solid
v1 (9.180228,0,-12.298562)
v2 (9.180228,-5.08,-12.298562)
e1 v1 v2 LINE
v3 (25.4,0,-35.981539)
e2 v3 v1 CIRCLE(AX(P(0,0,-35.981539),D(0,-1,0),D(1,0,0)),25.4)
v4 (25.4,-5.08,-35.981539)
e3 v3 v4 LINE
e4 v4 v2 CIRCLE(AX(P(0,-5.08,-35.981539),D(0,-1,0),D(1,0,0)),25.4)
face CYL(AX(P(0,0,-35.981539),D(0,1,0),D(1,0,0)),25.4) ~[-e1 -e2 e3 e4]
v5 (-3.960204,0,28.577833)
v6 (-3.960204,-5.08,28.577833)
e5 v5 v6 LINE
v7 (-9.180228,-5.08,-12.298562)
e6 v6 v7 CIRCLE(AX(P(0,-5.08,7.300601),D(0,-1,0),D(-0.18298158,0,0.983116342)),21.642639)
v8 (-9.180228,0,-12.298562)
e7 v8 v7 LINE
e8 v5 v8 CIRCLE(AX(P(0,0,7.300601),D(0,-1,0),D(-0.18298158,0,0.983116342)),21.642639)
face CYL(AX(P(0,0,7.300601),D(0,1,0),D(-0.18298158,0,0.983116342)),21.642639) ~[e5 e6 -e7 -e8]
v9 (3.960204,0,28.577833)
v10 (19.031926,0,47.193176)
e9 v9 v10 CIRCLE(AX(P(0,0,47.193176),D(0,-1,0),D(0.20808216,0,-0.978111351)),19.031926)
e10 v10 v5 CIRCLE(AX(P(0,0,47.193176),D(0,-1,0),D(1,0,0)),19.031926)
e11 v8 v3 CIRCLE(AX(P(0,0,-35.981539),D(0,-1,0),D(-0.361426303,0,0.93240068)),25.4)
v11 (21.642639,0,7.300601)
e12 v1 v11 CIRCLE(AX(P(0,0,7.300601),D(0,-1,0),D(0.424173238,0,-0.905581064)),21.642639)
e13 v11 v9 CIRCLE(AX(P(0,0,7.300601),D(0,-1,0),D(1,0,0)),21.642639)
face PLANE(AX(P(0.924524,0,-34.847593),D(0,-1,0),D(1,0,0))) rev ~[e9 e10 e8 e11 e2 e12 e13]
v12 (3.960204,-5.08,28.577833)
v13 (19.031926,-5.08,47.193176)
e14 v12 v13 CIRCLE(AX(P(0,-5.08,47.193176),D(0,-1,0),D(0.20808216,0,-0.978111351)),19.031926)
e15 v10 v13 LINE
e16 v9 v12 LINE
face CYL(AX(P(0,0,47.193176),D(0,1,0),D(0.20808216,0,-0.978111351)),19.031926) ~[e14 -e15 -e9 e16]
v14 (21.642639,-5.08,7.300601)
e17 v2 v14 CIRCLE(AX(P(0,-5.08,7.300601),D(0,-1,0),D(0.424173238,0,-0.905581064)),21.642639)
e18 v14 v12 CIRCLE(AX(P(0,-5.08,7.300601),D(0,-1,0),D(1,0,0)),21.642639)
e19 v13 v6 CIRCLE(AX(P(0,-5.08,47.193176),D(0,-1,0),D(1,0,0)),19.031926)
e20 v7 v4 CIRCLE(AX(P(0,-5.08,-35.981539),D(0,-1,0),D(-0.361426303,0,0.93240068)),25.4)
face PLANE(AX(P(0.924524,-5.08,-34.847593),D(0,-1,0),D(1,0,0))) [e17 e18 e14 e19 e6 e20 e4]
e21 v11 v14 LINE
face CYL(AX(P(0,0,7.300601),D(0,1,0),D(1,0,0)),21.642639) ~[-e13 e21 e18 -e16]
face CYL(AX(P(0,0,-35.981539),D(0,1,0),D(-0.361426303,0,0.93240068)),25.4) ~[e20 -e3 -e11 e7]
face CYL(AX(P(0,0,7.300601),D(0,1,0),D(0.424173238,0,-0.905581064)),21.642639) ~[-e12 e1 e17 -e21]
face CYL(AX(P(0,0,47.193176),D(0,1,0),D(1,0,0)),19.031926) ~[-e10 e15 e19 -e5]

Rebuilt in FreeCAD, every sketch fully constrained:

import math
import FreeCAD as App
import Part
import Sketcher

V = App.Vector
Q = App.Units.Quantity

doc = App.newDocument("Part")
body = doc.addObject("PartDesign::Body", "Body")

# Sketch on XZ plane
sketch1 = doc.addObject("Sketcher::SketchObject", "Sketch")
body.addObject(sketch1)
sketch1.AttachmentSupport = (doc.XZ_Plane, [""])
sketch1.MapMode = "FlatFace"
sketch1.addGeometry(Part.ArcOfCircle(Part.Circle(V(0, -35.981539, 0), V(0, 0, 1), 25.4), math.radians(111.187816), math.radians(360)), False)
sketch1.addGeometry(Part.ArcOfCircle(Part.Circle(V(0, -35.981539, 0), V(0, 0, 1), 25.4), math.radians(0), math.radians(68.812184)), False)
sketch1.addGeometry(Part.ArcOfCircle(Part.Circle(V(0, 7.300601, 0), V(0, 0, 1), 21.642639), math.radians(-64.901657), math.radians(0)), False)
sketch1.addGeometry(Part.ArcOfCircle(Part.Circle(V(0, 7.300601, 0), V(0, 0, 1), 21.642639), math.radians(0), math.radians(79.456523)), False)
sketch1.addGeometry(Part.ArcOfCircle(Part.Circle(V(0, 47.193176, 0), V(0, 0, 1), 19.031926), math.radians(-77.990014), math.radians(0)), False)
sketch1.addGeometry(Part.ArcOfCircle(Part.Circle(V(0, 47.193176, 0), V(0, 0, 1), 19.031926), math.radians(0), math.radians(257.990014)), False)
sketch1.addGeometry(Part.ArcOfCircle(Part.Circle(V(0, 7.300601, 0), V(0, 0, 1), 21.642639), math.radians(100.543477), math.radians(244.901657)), False)
sketch1.addConstraint(Sketcher.Constraint("Tangent", 0, 2, 1, 1))
sketch1.addConstraint(Sketcher.Constraint("Coincident", 1, 2, 2, 1))
sketch1.addConstraint(Sketcher.Constraint("Tangent", 2, 2, 3, 1))
sketch1.addConstraint(Sketcher.Constraint("Coincident", 3, 2, 4, 1))
sketch1.addConstraint(Sketcher.Constraint("Tangent", 4, 2, 5, 1))
sketch1.addConstraint(Sketcher.Constraint("Coincident", 5, 2, 6, 1))
sketch1.addConstraint(Sketcher.Constraint("Coincident", 6, 2, 0, 1))
sketch1.addConstraint(Sketcher.Constraint("Coincident", 6, 3, 2, 3))
sketch1.addConstraint(Sketcher.Constraint("Equal", 0, 1))
sketch1.addConstraint(Sketcher.Constraint("Equal", 2, 3))
sketch1.addConstraint(Sketcher.Constraint("Equal", 4, 5))
sketch1.addConstraint(Sketcher.Constraint("Equal", 3, 6))
sketch1.addConstraint(Sketcher.Constraint("Symmetric", 3, 2, 5, 2, -2))
sketch1.addConstraint(Sketcher.Constraint("PointOnObject", 0, 3, -2))
sketch1.addConstraint(Sketcher.Constraint("Horizontal", 1, 3, 0, 2))
sketch1.addConstraint(Sketcher.Constraint("Horizontal", 6, 3, 2, 2))
sketch1.addConstraint(Sketcher.Constraint("Horizontal", 5, 3, 4, 2))
sketch1.addConstraint(Sketcher.Constraint("Radius", 0, Q("1 in")))
sketch1.addConstraint(Sketcher.Constraint("Radius", 2, 21.642639))
sketch1.addConstraint(Sketcher.Constraint("Radius", 4, 19.031926))
sketch1.addConstraint(Sketcher.Constraint("DistanceY", -1, 1, 2, 3, 7.300601))
sketch1.addConstraint(Sketcher.Constraint("DistanceY", 0, 3, -1, 1, 35.981539))
sketch1.addConstraint(Sketcher.Constraint("DistanceY", 2, 3, 3, 2, 21.277232))
pad1 = doc.addObject("PartDesign::Pad", "Pad")
body.addObject(pad1)
pad1.Profile = sketch1
pad1.Length = Q("0.2 in")

doc.recompute()
